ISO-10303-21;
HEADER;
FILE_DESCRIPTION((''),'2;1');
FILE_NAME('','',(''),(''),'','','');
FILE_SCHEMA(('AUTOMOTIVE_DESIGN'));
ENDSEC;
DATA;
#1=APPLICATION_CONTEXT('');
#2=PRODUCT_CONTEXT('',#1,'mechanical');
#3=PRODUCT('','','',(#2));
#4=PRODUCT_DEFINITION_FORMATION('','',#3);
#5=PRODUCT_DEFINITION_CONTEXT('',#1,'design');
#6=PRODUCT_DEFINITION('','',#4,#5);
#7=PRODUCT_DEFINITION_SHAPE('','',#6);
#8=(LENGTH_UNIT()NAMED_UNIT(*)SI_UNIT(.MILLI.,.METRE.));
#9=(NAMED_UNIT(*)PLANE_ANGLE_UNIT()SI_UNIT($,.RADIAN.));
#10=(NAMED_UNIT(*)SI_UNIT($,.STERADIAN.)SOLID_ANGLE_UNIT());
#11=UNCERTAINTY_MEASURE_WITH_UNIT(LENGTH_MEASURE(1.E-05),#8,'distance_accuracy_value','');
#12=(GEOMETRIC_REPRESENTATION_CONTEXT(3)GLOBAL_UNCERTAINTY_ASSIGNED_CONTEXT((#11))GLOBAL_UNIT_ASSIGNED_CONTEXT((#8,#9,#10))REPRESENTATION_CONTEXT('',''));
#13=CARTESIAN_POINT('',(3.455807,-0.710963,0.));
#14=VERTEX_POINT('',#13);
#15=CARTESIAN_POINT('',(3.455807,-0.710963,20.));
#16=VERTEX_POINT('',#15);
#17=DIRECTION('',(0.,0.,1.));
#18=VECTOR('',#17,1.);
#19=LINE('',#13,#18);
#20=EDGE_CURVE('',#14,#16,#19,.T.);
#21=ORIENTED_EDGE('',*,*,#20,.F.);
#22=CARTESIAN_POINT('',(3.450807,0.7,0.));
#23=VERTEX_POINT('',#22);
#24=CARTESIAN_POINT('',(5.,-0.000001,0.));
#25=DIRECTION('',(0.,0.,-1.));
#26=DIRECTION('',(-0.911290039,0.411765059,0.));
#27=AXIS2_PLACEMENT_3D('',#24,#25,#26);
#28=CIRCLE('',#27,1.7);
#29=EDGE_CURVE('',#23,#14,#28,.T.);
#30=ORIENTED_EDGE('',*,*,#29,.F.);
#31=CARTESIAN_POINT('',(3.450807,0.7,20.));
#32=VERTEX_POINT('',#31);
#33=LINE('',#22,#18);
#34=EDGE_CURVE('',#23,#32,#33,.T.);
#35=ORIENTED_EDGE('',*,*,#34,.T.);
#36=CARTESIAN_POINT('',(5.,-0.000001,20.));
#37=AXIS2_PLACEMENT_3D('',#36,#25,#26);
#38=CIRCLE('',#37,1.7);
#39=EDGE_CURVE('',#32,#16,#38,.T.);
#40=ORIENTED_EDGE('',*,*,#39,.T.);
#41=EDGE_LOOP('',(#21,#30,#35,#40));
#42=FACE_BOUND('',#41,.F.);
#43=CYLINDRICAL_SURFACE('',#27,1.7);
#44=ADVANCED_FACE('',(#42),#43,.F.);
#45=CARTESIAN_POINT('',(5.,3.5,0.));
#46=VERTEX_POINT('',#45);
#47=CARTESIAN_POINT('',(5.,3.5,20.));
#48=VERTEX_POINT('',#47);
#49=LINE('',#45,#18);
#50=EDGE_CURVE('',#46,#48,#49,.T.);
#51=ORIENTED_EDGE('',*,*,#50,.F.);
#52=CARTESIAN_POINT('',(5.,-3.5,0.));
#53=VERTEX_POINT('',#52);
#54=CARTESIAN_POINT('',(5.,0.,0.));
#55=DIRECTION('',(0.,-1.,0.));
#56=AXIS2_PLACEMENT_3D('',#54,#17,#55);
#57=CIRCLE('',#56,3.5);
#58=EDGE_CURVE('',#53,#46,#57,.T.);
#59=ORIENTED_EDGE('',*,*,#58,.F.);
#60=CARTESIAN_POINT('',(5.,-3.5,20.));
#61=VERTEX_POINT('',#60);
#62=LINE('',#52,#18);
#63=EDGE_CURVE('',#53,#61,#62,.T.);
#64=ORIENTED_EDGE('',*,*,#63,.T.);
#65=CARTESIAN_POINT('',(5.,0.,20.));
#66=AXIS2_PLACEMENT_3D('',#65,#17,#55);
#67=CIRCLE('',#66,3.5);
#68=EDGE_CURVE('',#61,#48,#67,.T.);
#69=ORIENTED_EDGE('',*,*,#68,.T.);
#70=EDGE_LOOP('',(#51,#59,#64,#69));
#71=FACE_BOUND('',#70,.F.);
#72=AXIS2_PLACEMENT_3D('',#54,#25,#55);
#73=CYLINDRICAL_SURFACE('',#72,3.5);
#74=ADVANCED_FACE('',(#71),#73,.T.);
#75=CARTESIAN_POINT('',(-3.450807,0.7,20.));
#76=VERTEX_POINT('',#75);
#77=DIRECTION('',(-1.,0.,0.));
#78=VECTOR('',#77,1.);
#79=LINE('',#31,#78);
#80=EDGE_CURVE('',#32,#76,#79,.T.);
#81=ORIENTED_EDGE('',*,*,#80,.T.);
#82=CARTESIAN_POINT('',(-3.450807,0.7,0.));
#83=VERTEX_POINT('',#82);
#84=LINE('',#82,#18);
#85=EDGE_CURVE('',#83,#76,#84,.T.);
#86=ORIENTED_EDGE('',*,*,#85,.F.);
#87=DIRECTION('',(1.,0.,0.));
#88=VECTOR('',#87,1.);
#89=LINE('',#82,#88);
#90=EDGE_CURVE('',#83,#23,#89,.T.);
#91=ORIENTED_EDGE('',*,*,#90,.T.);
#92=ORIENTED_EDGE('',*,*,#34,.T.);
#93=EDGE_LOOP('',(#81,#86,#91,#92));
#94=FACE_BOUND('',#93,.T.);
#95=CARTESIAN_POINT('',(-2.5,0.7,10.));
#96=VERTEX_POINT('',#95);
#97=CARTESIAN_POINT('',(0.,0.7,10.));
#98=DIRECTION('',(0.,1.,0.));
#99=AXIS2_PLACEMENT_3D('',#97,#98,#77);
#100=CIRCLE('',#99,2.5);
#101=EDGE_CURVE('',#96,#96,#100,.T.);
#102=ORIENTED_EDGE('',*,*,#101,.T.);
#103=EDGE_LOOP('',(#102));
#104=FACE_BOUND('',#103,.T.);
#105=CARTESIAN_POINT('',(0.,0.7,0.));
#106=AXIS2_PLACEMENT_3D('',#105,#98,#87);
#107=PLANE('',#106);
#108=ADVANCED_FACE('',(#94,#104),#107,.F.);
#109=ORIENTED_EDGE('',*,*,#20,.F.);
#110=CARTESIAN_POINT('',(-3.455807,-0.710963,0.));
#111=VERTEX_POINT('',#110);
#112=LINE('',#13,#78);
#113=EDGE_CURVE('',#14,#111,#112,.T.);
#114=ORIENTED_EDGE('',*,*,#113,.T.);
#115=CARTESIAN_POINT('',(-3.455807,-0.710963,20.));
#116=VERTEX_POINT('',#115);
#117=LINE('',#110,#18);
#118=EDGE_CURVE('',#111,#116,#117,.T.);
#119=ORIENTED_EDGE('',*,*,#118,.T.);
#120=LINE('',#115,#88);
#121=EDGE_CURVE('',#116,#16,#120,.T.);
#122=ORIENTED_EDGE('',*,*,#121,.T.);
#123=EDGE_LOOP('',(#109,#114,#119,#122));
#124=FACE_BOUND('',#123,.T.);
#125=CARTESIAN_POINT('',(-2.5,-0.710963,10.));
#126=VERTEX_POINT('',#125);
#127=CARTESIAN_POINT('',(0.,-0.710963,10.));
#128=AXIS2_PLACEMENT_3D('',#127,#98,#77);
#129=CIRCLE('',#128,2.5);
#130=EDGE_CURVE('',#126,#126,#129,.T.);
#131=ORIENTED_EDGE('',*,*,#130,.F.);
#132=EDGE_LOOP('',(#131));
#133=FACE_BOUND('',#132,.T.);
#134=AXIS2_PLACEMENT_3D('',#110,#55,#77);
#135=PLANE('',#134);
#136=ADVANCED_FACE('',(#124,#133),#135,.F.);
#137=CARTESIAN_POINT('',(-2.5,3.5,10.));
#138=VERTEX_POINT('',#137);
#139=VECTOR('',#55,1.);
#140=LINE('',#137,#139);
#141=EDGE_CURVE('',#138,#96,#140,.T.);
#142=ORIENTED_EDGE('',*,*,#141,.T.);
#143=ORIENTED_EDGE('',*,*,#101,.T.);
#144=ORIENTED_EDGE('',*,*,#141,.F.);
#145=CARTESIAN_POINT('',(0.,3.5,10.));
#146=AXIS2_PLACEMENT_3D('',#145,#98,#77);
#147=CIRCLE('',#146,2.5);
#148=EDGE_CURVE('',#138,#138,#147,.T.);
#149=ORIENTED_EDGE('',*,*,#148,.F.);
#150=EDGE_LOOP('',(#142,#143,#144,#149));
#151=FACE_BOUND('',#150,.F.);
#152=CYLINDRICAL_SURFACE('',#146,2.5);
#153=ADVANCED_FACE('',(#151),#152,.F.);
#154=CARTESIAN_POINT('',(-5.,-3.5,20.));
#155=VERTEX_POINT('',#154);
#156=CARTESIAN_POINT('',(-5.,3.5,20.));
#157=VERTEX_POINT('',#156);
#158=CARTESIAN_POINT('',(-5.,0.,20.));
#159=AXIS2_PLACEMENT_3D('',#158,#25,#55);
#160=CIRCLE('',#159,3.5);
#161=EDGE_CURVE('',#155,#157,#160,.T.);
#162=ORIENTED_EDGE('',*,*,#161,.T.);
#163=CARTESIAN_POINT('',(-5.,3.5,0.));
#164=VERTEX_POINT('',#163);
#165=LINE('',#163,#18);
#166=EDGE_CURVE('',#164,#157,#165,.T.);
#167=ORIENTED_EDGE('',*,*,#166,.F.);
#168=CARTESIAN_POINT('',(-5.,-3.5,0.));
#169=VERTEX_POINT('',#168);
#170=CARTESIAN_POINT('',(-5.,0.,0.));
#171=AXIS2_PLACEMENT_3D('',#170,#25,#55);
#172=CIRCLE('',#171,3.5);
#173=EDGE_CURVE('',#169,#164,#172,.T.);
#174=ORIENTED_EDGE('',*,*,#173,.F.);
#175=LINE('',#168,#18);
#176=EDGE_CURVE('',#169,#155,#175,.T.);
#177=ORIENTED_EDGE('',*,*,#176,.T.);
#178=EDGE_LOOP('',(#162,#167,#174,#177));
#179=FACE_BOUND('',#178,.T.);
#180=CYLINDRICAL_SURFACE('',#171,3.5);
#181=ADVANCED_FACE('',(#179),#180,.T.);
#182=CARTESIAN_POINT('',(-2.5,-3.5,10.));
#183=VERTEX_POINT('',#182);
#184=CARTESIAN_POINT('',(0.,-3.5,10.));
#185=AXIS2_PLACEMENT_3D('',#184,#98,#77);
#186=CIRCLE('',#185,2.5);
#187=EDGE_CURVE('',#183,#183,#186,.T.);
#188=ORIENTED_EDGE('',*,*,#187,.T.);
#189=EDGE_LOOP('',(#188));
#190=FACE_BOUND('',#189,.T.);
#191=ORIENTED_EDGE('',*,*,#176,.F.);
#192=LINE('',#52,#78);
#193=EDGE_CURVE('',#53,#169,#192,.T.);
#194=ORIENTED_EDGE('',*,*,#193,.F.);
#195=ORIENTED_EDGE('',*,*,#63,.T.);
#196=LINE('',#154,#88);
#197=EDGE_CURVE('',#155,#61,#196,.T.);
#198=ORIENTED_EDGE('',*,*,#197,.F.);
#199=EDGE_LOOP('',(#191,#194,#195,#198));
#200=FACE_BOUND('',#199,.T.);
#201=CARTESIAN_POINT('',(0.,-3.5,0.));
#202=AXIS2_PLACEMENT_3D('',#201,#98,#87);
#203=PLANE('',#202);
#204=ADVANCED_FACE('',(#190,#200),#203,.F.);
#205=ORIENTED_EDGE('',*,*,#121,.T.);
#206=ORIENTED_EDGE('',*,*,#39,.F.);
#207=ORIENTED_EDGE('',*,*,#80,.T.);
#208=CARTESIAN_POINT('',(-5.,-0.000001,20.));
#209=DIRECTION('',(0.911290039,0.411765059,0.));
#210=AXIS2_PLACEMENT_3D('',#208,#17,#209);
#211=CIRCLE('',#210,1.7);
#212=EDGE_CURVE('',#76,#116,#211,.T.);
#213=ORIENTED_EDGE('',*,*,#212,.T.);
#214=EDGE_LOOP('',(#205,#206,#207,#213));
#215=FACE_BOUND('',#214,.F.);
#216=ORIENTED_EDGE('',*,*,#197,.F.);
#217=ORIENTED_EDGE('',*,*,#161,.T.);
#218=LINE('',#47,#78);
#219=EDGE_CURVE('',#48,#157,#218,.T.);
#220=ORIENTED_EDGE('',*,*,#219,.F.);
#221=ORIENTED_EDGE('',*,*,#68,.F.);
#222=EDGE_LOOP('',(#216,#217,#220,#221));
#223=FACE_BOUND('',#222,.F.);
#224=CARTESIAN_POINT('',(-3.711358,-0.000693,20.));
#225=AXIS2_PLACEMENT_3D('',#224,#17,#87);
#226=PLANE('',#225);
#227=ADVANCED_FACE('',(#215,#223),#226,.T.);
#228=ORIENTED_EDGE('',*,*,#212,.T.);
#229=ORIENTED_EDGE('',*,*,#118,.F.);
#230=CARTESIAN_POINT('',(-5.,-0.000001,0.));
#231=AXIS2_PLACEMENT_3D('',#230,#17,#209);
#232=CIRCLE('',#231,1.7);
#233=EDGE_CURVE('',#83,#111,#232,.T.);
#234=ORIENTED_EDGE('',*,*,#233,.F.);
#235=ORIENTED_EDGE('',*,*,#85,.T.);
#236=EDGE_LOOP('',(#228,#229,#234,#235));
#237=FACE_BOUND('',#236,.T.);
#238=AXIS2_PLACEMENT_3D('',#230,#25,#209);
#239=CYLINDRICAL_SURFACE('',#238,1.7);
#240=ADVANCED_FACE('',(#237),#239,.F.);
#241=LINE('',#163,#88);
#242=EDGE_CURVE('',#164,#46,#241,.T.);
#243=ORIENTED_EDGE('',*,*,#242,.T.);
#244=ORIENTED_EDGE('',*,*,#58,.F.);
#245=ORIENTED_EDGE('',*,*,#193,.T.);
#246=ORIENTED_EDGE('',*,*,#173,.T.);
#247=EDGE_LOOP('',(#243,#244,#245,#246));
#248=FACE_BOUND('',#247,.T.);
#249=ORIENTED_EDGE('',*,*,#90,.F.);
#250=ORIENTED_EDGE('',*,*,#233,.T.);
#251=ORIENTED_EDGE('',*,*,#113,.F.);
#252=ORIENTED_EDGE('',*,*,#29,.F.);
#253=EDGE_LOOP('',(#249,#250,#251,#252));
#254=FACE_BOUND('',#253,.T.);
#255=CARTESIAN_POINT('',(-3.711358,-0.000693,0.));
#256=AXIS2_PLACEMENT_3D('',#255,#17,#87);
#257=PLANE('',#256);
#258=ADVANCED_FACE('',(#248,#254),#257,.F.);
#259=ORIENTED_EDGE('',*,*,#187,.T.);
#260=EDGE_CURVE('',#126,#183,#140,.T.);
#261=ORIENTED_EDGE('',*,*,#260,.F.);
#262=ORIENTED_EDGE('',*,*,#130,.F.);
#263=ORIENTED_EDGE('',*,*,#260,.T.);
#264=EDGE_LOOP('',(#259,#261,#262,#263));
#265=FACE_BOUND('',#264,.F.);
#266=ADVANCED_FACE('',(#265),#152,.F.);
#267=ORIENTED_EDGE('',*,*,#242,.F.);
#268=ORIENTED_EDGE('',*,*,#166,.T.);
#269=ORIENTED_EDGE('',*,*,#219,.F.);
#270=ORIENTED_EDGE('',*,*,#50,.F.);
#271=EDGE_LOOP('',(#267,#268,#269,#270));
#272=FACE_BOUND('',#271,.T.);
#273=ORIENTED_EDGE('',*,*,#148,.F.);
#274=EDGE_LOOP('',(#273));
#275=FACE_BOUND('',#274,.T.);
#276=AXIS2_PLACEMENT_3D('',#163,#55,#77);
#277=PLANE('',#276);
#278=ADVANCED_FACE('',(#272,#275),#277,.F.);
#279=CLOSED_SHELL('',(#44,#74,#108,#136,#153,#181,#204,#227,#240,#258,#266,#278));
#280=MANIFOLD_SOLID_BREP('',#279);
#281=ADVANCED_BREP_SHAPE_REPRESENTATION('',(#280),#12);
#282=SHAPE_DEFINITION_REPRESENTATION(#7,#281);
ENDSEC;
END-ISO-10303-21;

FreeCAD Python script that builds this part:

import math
import FreeCAD as App
import Part
import Sketcher

doc = App.newDocument("Part")
body = doc.addObject("PartDesign::Body", "Body")

sketch1 = doc.addObject("Sketcher::SketchObject", "Sketch")
body.addObject(sketch1)
sketch1.AttachmentSupport = (doc.XY_Plane, [""])
sketch1.MapMode = "FlatFace"
sketch1.addGeometry([
    Part.ArcOfCircle(Part.Circle(App.Vector(5, -0.000001, 0), App.Vector(0, 0, 1), 1.7), math.radians(-155.278165), math.radians(155.684239)),
    Part.LineSegment(App.Vector(3.455807, -0.710963, 0), App.Vector(0, -0.710963, 0)),
    Part.LineSegment(App.Vector(0, -0.710963, 0), App.Vector(0, -3.5, 0)),
    Part.LineSegment(App.Vector(0, -3.5, 0), App.Vector(5, -3.5, 0)),
    Part.ArcOfCircle(Part.Circle(App.Vector(5, 0, 0), App.Vector(0, 0, 1), 3.5), math.radians(-90), math.radians(90)),
    Part.LineSegment(App.Vector(5, 3.5, 0), App.Vector(0, 3.5, 0)),
    Part.LineSegment(App.Vector(0, 3.5, 0), App.Vector(0, 0.7, 0)),
    Part.LineSegment(App.Vector(0, 0.7, 0), App.Vector(3.450807, 0.7, 0)),
], False)
sketch1.addConstraint([
    Sketcher.Constraint("Coincident", 0, 1, 1, 1),
    Sketcher.Constraint("Coincident", 1, 2, 2, 1),
    Sketcher.Constraint("Coincident", 2, 2, 3, 1),
    Sketcher.Constraint("Tangent", 3, 2, 4, 1),
    Sketcher.Constraint("Tangent", 4, 2, 5, 1),
    Sketcher.Constraint("Coincident", 5, 2, 6, 1),
    Sketcher.Constraint("Coincident", 6, 2, 7, 1),
    Sketcher.Constraint("Coincident", 7, 2, 0, 2),
    Sketcher.Constraint("Horizontal", 1),
    Sketcher.Constraint("Vertical", 2),
    Sketcher.Constraint("Horizontal", 3),
    Sketcher.Constraint("Horizontal", 5),
    Sketcher.Constraint("Vertical", 6),
    Sketcher.Constraint("Horizontal", 7),
    Sketcher.Constraint("Coincident", 4, 3, 0, 3),
    Sketcher.Constraint("Symmetric", 2, 2, 5, 2, -1, 1),
    Sketcher.Constraint("PointOnObject", 1, 2, -2),
    Sketcher.Constraint("Radius", 0, 1.7),
    Sketcher.Constraint("Radius", 4, 3.5),
    Sketcher.Constraint("DistanceX", 3, 1, 3, 2, 5.0),
    Sketcher.Constraint("DistanceY", 6, 2, 6, 1, 2.8),
    Sketcher.Constraint("DistanceX", 7, 2, 0, 1, 0.005),
])
pad1 = doc.addObject("PartDesign::Pad", "Pad")
body.addObject(pad1)
pad1.Profile = sketch1
pad1.Length = 20
body2 = doc.addObject("PartDesign::Body", "Body001")
doc.recompute()

body2.BaseFeature = body
doc.recompute()

mirroring = doc.addObject("Part::Mirroring", "Mirroring")
mirroring.Source = body
mirroring.Base = App.Vector(0, 0, 0)
mirroring.Normal = App.Vector(1, 0, 0)
body3 = doc.addObject("PartDesign::Body", "Body002")
body3.BaseFeature = mirroring
boolean = doc.addObject("PartDesign::Boolean", "Boolean")
body2.addObject(boolean)
boolean.Type = "Fuse"
boolean.addObjects([body3])
doc.recompute()

sketch2 = doc.addObject("Sketcher::SketchObject", "Sketch001")
body2.addObject(sketch2)
sketch2.AttachmentSupport = (doc.getObject("XZ_Plane001"), [""])
sketch2.MapMode = "FlatFace"
sketch2.AttachmentOffset = App.Placement(App.Vector(0, 0, -3.5), App.Rotation())
sketch2.addGeometry(Part.Circle(App.Vector(0, 10, 0), App.Vector(0, 0, 1), 2.5), False)
sketch2.addConstraint([
    Sketcher.Constraint("PointOnObject", 0, 3, -2),
    Sketcher.Constraint("Diameter", 0, 5.0),
    Sketcher.Constraint("DistanceY", -1, 1, 0, 3, 10.0),
])
pocket1 = doc.addObject("PartDesign::Pocket", "Pocket")
body2.addObject(pocket1)
pocket1.Profile = sketch2
pocket1.Type = "ThroughAll"
pocket1.Reversed = True
mirroring.Visibility = False

doc.recompute()
